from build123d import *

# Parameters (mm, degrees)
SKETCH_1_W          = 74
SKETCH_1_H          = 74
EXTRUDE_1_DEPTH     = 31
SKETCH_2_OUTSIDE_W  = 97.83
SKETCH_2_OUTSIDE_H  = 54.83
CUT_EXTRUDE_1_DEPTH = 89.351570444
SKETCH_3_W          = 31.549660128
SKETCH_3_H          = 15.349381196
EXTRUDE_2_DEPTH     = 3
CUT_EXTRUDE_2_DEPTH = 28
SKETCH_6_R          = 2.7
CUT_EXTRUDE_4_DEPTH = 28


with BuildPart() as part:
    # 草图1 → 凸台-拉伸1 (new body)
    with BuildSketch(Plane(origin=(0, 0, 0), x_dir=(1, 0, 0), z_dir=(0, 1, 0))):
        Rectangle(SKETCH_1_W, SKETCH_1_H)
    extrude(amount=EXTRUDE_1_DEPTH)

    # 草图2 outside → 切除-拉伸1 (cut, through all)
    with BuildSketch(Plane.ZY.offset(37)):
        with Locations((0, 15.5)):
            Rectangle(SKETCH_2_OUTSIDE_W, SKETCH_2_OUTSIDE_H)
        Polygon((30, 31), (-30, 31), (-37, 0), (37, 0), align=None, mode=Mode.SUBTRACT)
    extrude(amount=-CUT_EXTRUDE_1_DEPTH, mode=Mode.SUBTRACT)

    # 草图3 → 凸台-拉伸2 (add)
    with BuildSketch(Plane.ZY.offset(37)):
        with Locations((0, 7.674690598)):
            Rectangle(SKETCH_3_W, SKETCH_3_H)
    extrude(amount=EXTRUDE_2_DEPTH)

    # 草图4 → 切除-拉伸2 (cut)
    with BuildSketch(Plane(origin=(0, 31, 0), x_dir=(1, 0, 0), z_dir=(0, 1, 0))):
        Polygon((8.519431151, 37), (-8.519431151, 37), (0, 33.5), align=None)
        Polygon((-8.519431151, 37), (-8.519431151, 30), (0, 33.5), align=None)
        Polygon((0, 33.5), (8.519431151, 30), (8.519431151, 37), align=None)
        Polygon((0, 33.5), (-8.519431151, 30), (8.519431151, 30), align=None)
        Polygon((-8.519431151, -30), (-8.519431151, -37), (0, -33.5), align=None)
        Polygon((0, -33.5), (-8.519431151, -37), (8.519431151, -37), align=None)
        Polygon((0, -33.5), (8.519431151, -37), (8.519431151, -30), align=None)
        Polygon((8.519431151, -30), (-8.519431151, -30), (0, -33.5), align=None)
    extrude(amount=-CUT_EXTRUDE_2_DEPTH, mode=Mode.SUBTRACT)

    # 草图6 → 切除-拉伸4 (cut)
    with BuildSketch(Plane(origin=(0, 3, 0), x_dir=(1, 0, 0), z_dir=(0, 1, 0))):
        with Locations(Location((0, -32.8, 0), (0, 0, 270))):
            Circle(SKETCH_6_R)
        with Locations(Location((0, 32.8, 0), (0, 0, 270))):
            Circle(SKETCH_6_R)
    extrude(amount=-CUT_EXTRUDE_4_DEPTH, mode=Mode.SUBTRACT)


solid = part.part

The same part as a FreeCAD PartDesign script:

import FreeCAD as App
import Part
import Sketcher

doc = App.newDocument("Part")
body = doc.addObject("PartDesign::Body", "Body")

sketch1 = body.newObject("Sketcher::SketchObject", "Sketch")
sketch1.AttachmentSupport = (doc.getObject("XZ_Plane"), [""])
sketch1.MapMode = "FlatFace"
sketch1.addGeometry([
    Part.LineSegment(App.Vector(-37, -37, 0), App.Vector(-37, 37, 0)),
    Part.LineSegment(App.Vector(-37, 37, 0), App.Vector(37, 37, 0)),
    Part.LineSegment(App.Vector(37, 37, 0), App.Vector(37, -37, 0)),
    Part.LineSegment(App.Vector(37, -37, 0), App.Vector(-37, -37, 0)),
], False)
sketch1.addConstraint([
    Sketcher.Constraint("Coincident", 0, 2, 1, 1),
    Sketcher.Constraint("Coincident", 1, 2, 2, 1),
    Sketcher.Constraint("Coincident", 2, 2, 3, 1),
    Sketcher.Constraint("Coincident", 3, 2, 0, 1),
    Sketcher.Constraint("Vertical", 0),
    Sketcher.Constraint("Horizontal", 1),
    Sketcher.Constraint("Vertical", 2),
    Sketcher.Constraint("Horizontal", 3),
    Sketcher.Constraint("Symmetric", 0, 2, 2, 2, -1, 1),
    Sketcher.Constraint("Equal", 3, 0),
    Sketcher.Constraint("DistanceX", 1, 1, 1, 2, 74.0),
])
pad1 = body.newObject("PartDesign::Pad", "Pad")
pad1.Profile = sketch1
pad1.Length = 31
pad1.Reversed = True

sketch2 = body.newObject("Sketcher::SketchObject", "Sketch001")
sketch2.AttachmentSupport = (doc.getObject("YZ_Plane"), [""])
sketch2.MapMode = "FlatFace"
sketch2.AttachmentOffset = App.Placement(App.Vector(0, 0, -37), App.Rotation())
sketch2.addGeometry([
    Part.LineSegment(App.Vector(43, -49, 0), App.Vector(-12, -49, 0)),
    Part.LineSegment(App.Vector(-12, -49, 0), App.Vector(-12, 49, 0)),
    Part.LineSegment(App.Vector(-12, 49, 0), App.Vector(43, 49, 0)),
    Part.LineSegment(App.Vector(43, 49, 0), App.Vector(43, -49, 0)),
    Part.LineSegment(App.Vector(31, -30, 0), App.Vector(31, 30, 0)),
    Part.LineSegment(App.Vector(31, 30, 0), App.Vector(0, 37, 0)),
    Part.LineSegment(App.Vector(0, 37, 0), App.Vector(0, -37, 0)),
    Part.LineSegment(App.Vector(0, -37, 0), App.Vector(31, -30, 0)),
], False)
sketch2.addConstraint([
    Sketcher.Constraint("Coincident", 0, 2, 1, 1),
    Sketcher.Constraint("Coincident", 1, 2, 2, 1),
    Sketcher.Constraint("Coincident", 2, 2, 3, 1),
    Sketcher.Constraint("Coincident", 3, 2, 0, 1),
    Sketcher.Constraint("Coincident", 4, 2, 5, 1),
    Sketcher.Constraint("Coincident", 5, 2, 6, 1),
    Sketcher.Constraint("Coincident", 6, 2, 7, 1),
    Sketcher.Constraint("Coincident", 7, 2, 4, 1),
    Sketcher.Constraint("Horizontal", 0),
    Sketcher.Constraint("Vertical", 1),
    Sketcher.Constraint("Horizontal", 2),
    Sketcher.Constraint("Vertical", 3),
    Sketcher.Constraint("Vertical", 4),
    Sketcher.Constraint("Vertical", 6),
    Sketcher.Constraint("Symmetric", 5, 2, 6, 2, -1, 1),
    Sketcher.Constraint("Equal", 5, 7),
    Sketcher.Constraint("DistanceY", 4, 1, 4, 2, 60.0),
    Sketcher.Constraint("DistanceY", 6, 2, 6, 1, 74.0),
    Sketcher.Constraint("DistanceX", -1, 1, 4, 2, 31.0),
    Sketcher.Constraint("DistanceX", 0, 2, 0, 1, 54.83),
    Sketcher.Constraint("DistanceY", 1, 1, 1, 2, 97.83),
    Sketcher.Constraint("DistanceX", 0, 2, -1, 1, 11.915),
    Sketcher.Constraint("DistanceY", 0, 2, -1, 1, 48.915),
])
pocket1 = body.newObject("PartDesign::Pocket", "Pocket")
pocket1.Profile = sketch2
pocket1.Type = "ThroughAll"
pocket1.Reversed = True

sketch3 = body.newObject("Sketcher::SketchObject", "Sketch002")
sketch3.AttachmentSupport = (doc.getObject("YZ_Plane"), [""])
sketch3.MapMode = "FlatFace"
sketch3.AttachmentOffset = App.Placement(App.Vector(0, 0, -37), App.Rotation())
sketch3.addGeometry([
    Part.LineSegment(App.Vector(15, -16, 0), App.Vector(0, -16, 0)),
    Part.LineSegment(App.Vector(0, -16, 0), App.Vector(0, 16, 0)),
    Part.LineSegment(App.Vector(0, 16, 0), App.Vector(15, 16, 0)),
    Part.LineSegment(App.Vector(15, 16, 0), App.Vector(15, -16, 0)),
], False)
sketch3.addConstraint([
    Sketcher.Constraint("Coincident", 0, 2, 1, 1),
    Sketcher.Constraint("Coincident", 1, 2, 2, 1),
    Sketcher.Constraint("Coincident", 2, 2, 3, 1),
    Sketcher.Constraint("Coincident", 3, 2, 0, 1),
    Sketcher.Constraint("Horizontal", 0),
    Sketcher.Constraint("Vertical", 1),
    Sketcher.Constraint("Horizontal", 2),
    Sketcher.Constraint("Vertical", 3),
    Sketcher.Constraint("Symmetric", 0, 2, 1, 2, -1, 1),
    Sketcher.Constraint("DistanceX", 0, 2, 0, 1, 15.349381),
    Sketcher.Constraint("DistanceY", 1, 1, 1, 2, 31.54966),
])
pad2 = body.newObject("PartDesign::Pad", "Pad001")
pad2.Profile = sketch3
pad2.Length = 3
pad2.Reversed = True

sketch4 = body.newObject("Sketcher::SketchObject", "Sketch003")
sketch4.AttachmentSupport = (doc.getObject("XZ_Plane"), [""])
sketch4.MapMode = "FlatFace"
sketch4.AttachmentOffset = App.Placement(App.Vector(0, 0, -31), App.Rotation())
sketch4.addGeometry([
    Part.LineSegment(App.Vector(9, -37, 0), App.Vector(-9, -37, 0)),
    Part.LineSegment(App.Vector(-9, -37, 0), App.Vector(-9, -30, 0)),
    Part.LineSegment(App.Vector(-9, -30, 0), App.Vector(9, -30, 0)),
    Part.LineSegment(App.Vector(9, -30, 0), App.Vector(9, -37, 0)),
    Part.LineSegment(App.Vector(-9, 30, 0), App.Vector(-9, 37, 0)),
    Part.LineSegment(App.Vector(-9, 37, 0), App.Vector(9, 37, 0)),
    Part.LineSegment(App.Vector(9, 37, 0), App.Vector(9, 30, 0)),
    Part.LineSegment(App.Vector(9, 30, 0), App.Vector(-9, 30, 0)),
], False)
sketch4.addConstraint([
    Sketcher.Constraint("Coincident", 0, 2, 1, 1),
    Sketcher.Constraint("Coincident", 1, 2, 2, 1),
    Sketcher.Constraint("Coincident", 2, 2, 3, 1),
    Sketcher.Constraint("Coincident", 3, 2, 0, 1),
    Sketcher.Constraint("Coincident", 4, 2, 5, 1),
    Sketcher.Constraint("Coincident", 5, 2, 6, 1),
    Sketcher.Constraint("Coincident", 6, 2, 7, 1),
    Sketcher.Constraint("Coincident", 7, 2, 4, 1),
    Sketcher.Constraint("Horizontal", 0),
    Sketcher.Constraint("Vertical", 1),
    Sketcher.Constraint("Horizontal", 2),
    Sketcher.Constraint("Vertical", 3),
    Sketcher.Constraint("Vertical", 4),
    Sketcher.Constraint("Horizontal", 5),
    Sketcher.Constraint("Vertical", 6),
    Sketcher.Constraint("Horizontal", 7),
    Sketcher.Constraint("Symmetric", 3, 2, 4, 2, -1, 1),
    Sketcher.Constraint("Symmetric", 1, 2, 6, 2, -1, 1),
    Sketcher.Constraint("Vertical", 1, 2, 4, 2),
    Sketcher.Constraint("DistanceY", 1, 1, 1, 2, 7.0),
    Sketcher.Constraint("DistanceY", 0, 2, -1, 1, 37.0),
    Sketcher.Constraint("DistanceX", 0, 2, 0, 1, 17.038862),
])
pocket2 = body.newObject("PartDesign::Pocket", "Pocket001")
pocket2.Profile = sketch4
pocket2.Length = 28
pocket2.Reversed = True

sketch5 = body.newObject("Sketcher::SketchObject", "Sketch004")
sketch5.AttachmentSupport = (doc.getObject("XZ_Plane"), [""])
sketch5.MapMode = "FlatFace"
sketch5.AttachmentOffset = App.Placement(App.Vector(0, 0, -3), App.Rotation())
sketch5.addGeometry([
    Part.Circle(App.Vector(0, 32.8, 0), App.Vector(0, 0, 1), 2.7),
    Part.Circle(App.Vector(0, -32.8, 0), App.Vector(0, 0, 1), 2.7),
], False)
sketch5.addConstraint([
    Sketcher.Constraint("Equal", 0, 1),
    Sketcher.Constraint("Symmetric", 0, 3, 1, 3, -1, 1),
    Sketcher.Constraint("PointOnObject", 0, 3, -2),
    Sketcher.Constraint("Diameter", 0, 5.4),
    Sketcher.Constraint("DistanceY", -1, 1, 0, 3, 32.8),
])
pocket3 = body.newObject("PartDesign::Pocket", "Pocket002")
pocket3.Profile = sketch5
pocket3.Length = 28
pocket3.Reversed = True

doc.recompute()
